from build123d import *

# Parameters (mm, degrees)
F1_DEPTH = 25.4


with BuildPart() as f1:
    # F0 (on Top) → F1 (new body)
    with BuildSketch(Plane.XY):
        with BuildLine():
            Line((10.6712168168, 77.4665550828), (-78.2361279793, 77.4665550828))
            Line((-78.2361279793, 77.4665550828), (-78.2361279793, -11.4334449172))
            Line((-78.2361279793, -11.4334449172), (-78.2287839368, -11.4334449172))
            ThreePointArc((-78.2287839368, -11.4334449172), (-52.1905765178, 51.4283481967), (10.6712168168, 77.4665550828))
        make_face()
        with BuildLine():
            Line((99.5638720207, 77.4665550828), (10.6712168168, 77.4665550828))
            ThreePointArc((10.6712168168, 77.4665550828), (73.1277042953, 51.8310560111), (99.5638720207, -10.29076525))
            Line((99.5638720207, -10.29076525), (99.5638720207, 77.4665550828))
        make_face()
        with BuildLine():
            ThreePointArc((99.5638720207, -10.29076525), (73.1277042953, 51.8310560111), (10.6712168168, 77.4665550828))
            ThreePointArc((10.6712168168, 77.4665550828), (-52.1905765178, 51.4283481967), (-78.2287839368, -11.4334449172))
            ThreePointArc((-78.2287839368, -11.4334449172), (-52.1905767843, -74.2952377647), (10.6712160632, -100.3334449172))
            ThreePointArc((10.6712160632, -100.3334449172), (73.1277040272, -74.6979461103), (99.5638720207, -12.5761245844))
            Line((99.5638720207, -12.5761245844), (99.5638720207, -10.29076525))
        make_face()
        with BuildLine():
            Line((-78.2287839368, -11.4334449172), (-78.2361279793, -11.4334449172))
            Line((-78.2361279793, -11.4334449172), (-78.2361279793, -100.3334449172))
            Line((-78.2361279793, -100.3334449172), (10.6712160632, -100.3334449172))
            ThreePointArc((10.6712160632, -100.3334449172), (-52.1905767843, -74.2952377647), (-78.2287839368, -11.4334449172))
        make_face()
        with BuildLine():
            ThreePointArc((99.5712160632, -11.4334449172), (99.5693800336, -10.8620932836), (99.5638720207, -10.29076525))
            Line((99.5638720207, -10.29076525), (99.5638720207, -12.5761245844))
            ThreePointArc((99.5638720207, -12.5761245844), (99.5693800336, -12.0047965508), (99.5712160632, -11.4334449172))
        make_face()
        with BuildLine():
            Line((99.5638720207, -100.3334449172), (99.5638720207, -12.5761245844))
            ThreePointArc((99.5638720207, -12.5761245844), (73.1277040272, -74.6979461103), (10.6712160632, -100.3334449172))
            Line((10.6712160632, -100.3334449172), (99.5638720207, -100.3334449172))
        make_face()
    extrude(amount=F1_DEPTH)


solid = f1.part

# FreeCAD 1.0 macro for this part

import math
import FreeCAD as App
import Part
import Sketcher

V = App.Vector
Q = App.Units.Quantity

doc = App.newDocument("Part")
params = doc.addObject("Spreadsheet::Sheet", "Params")
for row, (alias, value) in enumerate([
    ("sketch1_radius", "3.5 in"),
    ("sketch1_width", "7 in"),
    ("pad1_length", "1 in"),
], start=1):
    params.set(f"A{row}", alias)
    params.set(f"B{row}", "=" + value)
    params.setAlias(f"B{row}", alias)

body = doc.addObject("PartDesign::Body", "Body")

sketch1 = doc.addObject("Sketcher::SketchObject", "Sketch")
body.addObject(sketch1)
sketch1.AttachmentSupport = (doc.XY_Plane, [""])
sketch1.MapMode = "FlatFace"
sketch1.addGeometry([
    Part.LineSegment(V(-78.236128, 77.466555, 0), V(-78.236128, -100.333445, 0)),
    Part.LineSegment(V(-78.236128, -100.333445, 0), V(99.563872, -100.333445, 0)),
    Part.LineSegment(V(99.563872, -100.333445, 0), V(99.563872, -12.576125, 0)),
    Part.ArcOfCircle(Part.Circle(V(10.671215, -11.433445, 0), V(0, 0, 1), 88.900001), math.radians(-0.736474), math.radians(0)),
    Part.ArcOfCircle(Part.Circle(V(10.671215, -11.433445, 0), V(0, 0, 1), 88.900001), math.radians(0), math.radians(0.736474)),
    Part.LineSegment(V(99.563872, -10.290765, 0), V(99.563872, 77.466555, 0)),
    Part.LineSegment(V(99.563872, 77.466555, 0), V(-78.236128, 77.466555, 0)),
], False)
sketch1.addConstraint([
    Sketcher.Constraint("Coincident", 0, 2, 1, 1),
    Sketcher.Constraint("Coincident", 1, 2, 2, 1),
    Sketcher.Constraint("Coincident", 2, 2, 3, 1),
    Sketcher.Constraint("Tangent", 3, 2, 4, 1),
    Sketcher.Constraint("Coincident", 4, 2, 5, 1),
    Sketcher.Constraint("Coincident", 5, 2, 6, 1),
    Sketcher.Constraint("Coincident", 6, 2, 0, 1),
    Sketcher.Constraint("Vertical", 0),
    Sketcher.Constraint("Horizontal", 1),
    Sketcher.Constraint("Vertical", 2),
    Sketcher.Constraint("Vertical", 5),
    Sketcher.Constraint("Horizontal", 6),
    Sketcher.Constraint("Equal", 3, 4),
    Sketcher.Constraint("Horizontal", 4, 3, 3, 2),
    Sketcher.Constraint("Vertical", 2, 2, 4, 2),
    Sketcher.Constraint("Equal", 6, 0),
    Sketcher.Constraint("Equal", 2, 5),
    Sketcher.Constraint("Radius", 3, Q("3.5 in")),
    Sketcher.Constraint("DistanceX", 1, 1, 1, 2, Q("7 in")),
    Sketcher.Constraint("DistanceY", 2, 1, 2, 2, 87.75732),
    Sketcher.Constraint("DistanceX", -1, 1, 3, 3, 10.671215),
    Sketcher.Constraint("DistanceY", 3, 3, -1, 1, 11.433445),
])
sketch1.setExpression("Constraints[17]", "Params.sketch1_radius")
sketch1.setExpression("Constraints[18]", "Params.sketch1_width")
pad1 = doc.addObject("PartDesign::Pad", "Pad")
body.addObject(pad1)
pad1.Profile = sketch1
pad1.setExpression("Length", "Params.pad1_length")

doc.recompute()
